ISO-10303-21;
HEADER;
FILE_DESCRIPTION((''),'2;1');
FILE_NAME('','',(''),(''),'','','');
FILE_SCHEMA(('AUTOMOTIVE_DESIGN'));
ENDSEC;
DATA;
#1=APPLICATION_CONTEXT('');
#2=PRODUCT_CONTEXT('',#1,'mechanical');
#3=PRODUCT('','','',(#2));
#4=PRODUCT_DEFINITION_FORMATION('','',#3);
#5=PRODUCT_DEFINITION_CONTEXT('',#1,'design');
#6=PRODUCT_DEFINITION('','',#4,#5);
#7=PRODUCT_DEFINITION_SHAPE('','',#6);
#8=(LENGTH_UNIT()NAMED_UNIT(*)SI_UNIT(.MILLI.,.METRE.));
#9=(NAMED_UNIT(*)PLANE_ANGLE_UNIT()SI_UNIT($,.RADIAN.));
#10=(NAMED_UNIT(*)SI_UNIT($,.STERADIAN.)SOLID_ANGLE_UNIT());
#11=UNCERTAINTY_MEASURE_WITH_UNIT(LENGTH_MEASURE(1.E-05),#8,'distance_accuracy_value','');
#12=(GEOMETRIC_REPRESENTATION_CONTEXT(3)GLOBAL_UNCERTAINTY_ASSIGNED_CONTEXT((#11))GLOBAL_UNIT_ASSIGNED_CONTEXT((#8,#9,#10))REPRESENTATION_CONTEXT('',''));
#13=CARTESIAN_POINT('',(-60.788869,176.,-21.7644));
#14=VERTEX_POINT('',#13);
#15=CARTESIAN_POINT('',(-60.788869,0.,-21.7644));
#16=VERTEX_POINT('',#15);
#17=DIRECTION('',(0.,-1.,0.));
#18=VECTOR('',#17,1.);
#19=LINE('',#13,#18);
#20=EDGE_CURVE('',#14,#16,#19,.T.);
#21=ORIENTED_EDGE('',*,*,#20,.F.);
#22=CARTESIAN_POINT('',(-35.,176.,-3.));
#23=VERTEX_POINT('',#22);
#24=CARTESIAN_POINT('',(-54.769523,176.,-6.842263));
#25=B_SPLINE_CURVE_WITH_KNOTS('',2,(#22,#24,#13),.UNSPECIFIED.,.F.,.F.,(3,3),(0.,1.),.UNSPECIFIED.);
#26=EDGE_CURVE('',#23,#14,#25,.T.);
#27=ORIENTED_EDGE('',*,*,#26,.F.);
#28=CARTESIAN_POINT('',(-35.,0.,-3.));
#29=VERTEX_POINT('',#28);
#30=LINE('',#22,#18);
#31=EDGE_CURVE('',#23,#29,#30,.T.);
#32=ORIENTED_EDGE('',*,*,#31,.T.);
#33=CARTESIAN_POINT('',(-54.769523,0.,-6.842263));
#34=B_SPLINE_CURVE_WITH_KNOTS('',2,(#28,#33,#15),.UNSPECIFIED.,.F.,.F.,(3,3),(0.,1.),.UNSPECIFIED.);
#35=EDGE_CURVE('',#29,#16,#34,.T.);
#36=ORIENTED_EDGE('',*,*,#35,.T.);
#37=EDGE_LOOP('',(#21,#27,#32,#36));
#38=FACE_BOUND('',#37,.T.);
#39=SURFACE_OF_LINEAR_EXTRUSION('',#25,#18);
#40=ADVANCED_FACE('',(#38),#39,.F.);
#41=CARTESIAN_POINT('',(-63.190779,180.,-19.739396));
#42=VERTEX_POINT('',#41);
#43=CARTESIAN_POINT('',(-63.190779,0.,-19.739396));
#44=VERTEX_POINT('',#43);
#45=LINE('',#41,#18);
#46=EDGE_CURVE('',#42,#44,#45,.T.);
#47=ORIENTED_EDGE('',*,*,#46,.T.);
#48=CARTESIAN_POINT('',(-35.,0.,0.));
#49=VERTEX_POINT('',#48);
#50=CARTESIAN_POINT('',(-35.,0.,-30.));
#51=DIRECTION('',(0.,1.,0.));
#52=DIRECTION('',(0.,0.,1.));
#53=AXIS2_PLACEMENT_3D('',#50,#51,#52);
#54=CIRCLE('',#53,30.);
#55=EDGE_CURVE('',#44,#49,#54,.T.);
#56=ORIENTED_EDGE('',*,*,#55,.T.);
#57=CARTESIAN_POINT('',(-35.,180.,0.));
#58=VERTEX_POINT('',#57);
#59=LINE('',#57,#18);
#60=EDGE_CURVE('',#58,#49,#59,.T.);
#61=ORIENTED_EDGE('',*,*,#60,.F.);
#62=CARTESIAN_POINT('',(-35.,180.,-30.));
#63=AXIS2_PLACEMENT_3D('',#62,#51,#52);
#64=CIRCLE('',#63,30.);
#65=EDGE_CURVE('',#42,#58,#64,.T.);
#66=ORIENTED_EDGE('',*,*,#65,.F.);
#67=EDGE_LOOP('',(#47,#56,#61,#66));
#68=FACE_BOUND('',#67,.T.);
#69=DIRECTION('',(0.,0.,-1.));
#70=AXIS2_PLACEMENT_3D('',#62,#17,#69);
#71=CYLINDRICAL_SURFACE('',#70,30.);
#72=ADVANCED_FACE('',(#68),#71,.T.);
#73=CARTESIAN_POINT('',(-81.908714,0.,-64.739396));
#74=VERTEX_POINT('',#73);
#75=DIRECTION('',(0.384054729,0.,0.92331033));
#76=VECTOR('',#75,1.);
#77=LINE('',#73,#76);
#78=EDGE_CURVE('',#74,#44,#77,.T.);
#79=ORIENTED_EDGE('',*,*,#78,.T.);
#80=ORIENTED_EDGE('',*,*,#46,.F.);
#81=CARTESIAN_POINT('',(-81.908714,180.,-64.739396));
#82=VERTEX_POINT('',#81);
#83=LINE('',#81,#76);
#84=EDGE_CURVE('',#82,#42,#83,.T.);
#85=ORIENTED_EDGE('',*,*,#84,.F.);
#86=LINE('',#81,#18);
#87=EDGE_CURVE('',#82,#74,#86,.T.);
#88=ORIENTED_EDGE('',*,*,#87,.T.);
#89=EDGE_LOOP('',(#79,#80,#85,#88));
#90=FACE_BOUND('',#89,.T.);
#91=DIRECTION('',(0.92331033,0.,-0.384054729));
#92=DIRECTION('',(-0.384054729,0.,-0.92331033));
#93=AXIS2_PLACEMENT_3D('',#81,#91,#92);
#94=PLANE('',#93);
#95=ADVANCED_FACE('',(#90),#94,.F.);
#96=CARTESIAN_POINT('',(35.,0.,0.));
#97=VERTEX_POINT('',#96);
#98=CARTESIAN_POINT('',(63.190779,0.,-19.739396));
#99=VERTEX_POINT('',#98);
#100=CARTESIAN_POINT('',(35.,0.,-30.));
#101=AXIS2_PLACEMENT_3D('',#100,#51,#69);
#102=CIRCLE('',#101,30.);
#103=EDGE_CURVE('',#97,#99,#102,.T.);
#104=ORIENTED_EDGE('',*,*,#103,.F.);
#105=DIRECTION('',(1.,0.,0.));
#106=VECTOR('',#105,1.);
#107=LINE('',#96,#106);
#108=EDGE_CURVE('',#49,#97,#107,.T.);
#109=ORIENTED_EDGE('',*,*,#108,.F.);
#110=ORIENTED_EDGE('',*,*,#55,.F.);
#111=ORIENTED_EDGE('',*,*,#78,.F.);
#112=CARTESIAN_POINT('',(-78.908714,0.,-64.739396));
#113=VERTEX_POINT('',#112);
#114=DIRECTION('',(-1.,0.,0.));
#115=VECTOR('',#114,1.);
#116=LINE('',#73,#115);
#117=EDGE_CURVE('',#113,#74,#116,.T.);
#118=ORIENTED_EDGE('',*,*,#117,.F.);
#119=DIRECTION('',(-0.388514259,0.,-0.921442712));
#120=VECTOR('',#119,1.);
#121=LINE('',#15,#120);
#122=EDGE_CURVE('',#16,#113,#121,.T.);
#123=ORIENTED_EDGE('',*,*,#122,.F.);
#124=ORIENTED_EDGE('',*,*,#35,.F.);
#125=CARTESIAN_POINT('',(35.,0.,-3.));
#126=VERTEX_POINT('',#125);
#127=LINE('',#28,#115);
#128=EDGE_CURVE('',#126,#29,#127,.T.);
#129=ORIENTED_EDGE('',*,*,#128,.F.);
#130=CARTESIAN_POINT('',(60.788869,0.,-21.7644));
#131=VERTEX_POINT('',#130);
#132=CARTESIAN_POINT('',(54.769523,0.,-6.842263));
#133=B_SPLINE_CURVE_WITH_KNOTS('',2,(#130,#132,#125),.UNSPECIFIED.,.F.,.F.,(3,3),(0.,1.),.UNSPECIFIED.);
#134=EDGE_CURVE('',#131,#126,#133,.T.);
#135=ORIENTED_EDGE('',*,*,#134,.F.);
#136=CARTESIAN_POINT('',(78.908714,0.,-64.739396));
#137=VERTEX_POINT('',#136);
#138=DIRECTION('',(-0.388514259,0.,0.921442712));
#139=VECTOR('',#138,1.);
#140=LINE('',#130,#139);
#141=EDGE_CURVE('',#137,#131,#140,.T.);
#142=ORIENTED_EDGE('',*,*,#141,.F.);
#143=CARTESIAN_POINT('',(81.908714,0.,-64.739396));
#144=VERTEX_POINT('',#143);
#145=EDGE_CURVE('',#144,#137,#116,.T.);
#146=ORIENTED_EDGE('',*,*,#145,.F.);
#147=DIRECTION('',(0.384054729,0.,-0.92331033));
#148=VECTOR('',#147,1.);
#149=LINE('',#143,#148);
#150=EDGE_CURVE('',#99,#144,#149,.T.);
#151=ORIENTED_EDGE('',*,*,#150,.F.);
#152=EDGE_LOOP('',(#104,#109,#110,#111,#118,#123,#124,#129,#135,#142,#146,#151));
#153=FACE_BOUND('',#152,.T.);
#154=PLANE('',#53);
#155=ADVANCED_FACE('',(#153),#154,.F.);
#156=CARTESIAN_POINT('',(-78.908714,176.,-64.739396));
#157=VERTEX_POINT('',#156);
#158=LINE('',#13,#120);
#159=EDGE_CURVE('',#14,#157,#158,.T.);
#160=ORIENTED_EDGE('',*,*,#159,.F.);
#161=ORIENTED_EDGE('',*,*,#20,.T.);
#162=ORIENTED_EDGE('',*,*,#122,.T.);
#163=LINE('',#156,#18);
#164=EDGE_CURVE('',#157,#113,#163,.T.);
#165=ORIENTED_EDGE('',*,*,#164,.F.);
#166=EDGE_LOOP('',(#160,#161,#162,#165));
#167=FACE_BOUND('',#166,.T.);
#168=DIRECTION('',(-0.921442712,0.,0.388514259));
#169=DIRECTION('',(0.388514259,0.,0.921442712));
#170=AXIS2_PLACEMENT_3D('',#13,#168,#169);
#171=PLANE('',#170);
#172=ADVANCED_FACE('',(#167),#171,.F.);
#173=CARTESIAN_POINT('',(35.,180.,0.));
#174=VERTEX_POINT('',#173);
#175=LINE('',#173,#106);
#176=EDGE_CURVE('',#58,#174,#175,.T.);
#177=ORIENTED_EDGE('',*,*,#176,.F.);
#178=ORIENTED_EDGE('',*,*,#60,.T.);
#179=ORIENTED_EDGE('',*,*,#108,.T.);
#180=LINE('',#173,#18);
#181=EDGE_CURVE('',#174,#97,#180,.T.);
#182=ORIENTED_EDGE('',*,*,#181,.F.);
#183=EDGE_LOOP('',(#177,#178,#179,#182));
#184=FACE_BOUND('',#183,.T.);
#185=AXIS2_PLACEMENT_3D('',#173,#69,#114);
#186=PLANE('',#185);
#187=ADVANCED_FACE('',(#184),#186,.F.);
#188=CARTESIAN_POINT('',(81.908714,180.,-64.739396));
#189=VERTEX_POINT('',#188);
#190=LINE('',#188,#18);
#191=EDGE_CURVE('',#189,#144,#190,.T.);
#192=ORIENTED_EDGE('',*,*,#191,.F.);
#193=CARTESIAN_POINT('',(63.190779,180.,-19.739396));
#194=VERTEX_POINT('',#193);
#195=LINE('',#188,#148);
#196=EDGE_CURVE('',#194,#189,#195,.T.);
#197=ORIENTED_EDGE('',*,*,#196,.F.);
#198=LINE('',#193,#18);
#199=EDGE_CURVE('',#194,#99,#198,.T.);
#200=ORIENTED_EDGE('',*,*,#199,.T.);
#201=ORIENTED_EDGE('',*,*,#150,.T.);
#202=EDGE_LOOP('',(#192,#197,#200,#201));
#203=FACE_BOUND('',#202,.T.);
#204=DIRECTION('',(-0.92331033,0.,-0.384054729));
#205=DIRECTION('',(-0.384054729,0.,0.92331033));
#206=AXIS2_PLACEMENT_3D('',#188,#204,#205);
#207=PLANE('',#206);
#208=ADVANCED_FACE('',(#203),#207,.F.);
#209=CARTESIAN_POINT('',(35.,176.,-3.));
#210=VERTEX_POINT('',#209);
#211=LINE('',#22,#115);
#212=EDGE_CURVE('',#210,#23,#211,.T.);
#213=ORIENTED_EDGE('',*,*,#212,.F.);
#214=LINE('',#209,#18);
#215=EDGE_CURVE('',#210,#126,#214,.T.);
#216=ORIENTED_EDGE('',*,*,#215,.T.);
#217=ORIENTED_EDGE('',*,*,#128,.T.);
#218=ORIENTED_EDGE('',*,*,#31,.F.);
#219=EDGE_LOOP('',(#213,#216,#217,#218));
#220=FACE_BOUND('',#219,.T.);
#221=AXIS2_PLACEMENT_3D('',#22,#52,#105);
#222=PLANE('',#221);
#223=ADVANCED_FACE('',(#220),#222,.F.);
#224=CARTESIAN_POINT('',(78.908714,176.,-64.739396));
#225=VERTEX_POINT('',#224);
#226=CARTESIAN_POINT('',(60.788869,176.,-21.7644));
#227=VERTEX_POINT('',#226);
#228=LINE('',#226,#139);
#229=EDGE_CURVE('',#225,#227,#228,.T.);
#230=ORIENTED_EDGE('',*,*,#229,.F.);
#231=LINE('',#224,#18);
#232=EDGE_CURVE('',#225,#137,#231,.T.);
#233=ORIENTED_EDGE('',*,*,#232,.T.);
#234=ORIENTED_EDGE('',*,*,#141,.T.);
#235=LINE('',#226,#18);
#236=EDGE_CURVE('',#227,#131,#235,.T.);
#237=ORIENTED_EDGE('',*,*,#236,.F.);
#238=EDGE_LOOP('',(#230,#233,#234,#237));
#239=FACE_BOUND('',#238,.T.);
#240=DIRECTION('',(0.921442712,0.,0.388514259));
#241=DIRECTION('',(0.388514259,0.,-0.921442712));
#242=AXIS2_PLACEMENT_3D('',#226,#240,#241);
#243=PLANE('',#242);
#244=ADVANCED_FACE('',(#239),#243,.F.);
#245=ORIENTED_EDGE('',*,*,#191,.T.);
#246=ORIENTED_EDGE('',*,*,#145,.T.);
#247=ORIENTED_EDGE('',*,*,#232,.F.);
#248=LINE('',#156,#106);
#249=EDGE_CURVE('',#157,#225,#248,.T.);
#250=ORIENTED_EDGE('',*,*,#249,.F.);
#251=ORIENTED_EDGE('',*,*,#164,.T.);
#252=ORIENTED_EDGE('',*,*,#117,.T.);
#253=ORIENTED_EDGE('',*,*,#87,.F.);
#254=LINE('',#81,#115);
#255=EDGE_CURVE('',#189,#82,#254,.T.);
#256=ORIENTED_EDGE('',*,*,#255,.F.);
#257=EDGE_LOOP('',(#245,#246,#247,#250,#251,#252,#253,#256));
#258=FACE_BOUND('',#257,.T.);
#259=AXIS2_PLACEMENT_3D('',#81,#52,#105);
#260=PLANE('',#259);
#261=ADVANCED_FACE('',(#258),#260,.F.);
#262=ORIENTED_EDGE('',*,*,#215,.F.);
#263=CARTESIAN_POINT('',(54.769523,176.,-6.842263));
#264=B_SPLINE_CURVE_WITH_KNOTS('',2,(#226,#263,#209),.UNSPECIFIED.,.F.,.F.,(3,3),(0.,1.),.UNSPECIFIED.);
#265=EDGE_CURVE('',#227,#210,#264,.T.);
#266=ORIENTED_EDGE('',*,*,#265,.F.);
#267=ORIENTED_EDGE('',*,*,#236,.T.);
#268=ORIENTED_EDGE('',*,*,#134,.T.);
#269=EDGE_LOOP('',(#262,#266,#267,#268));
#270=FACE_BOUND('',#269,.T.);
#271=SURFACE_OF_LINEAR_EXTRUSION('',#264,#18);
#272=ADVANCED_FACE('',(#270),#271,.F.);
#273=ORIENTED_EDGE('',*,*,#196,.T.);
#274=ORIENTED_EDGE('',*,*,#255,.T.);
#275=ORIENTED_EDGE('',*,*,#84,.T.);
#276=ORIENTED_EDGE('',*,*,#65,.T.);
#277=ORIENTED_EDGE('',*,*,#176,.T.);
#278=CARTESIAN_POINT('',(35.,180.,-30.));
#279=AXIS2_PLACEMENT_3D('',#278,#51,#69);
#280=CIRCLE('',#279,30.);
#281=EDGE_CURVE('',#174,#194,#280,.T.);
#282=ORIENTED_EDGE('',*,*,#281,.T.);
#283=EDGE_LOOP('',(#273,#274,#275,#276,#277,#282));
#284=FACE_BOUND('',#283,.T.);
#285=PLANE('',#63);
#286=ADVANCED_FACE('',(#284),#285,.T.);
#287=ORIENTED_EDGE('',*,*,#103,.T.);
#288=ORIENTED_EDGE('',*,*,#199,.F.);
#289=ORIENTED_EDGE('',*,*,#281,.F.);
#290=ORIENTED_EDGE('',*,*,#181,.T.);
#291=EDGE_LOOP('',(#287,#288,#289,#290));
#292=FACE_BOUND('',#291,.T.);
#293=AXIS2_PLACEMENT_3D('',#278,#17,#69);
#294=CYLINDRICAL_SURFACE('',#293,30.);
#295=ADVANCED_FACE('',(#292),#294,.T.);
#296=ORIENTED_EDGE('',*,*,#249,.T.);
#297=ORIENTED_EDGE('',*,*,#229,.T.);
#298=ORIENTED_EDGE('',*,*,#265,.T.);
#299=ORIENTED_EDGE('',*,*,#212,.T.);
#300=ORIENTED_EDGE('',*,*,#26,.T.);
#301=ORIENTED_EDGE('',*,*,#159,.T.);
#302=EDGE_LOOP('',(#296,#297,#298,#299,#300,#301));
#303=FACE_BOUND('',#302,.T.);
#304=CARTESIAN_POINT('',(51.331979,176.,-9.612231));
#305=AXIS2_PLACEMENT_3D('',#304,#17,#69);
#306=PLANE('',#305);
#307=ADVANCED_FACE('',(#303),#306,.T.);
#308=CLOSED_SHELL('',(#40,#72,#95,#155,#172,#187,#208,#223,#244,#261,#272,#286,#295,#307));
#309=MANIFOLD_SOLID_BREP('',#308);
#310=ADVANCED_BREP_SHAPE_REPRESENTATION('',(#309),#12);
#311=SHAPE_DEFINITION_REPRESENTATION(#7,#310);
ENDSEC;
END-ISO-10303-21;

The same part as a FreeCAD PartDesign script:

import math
import FreeCAD as App
import Part
import Sketcher
from FreeCAD import Vector
Q = App.Units.Quantity

doc = App.newDocument("Part")
body = doc.addObject("PartDesign::Body", "Body")

# Sketch on XZ plane
sketch1 = body.newObject("Sketcher::SketchObject", "Sketch")
sketch1.AttachmentSupport = (doc.getObject("XZ_Plane"), [""])
sketch1.MapMode = "FlatFace"
sketch1.addGeometry(Part.LineSegment(Vector(-35, 0, 0), Vector(35, 0, 0)), False)
sketch1.addGeometry(Part.ArcOfCircle(Part.Circle(Vector(35, -30, 0), Vector(0, 0, 1), 30), math.radians(20), math.radians(90)), False)
sketch1.addGeometry(Part.LineSegment(Vector(63.190779, -19.739396, 0), Vector(81.908714, -64.739396, 0)), False)
sketch1.addGeometry(Part.LineSegment(Vector(81.908714, -64.739396, 0), Vector(-81.908714, -64.739396, 0)), False)
sketch1.addGeometry(Part.LineSegment(Vector(-81.908714, -64.739396, 0), Vector(-63.190779, -19.739396, 0)), False)
sketch1.addGeometry(Part.ArcOfCircle(Part.Circle(Vector(-35, -30, 0), Vector(0, 0, 1), 30), math.radians(90), math.radians(160)), False)
sketch1.addConstraint(Sketcher.Constraint("Tangent", 0, 2, 1, 2))
sketch1.addConstraint(Sketcher.Constraint("Coincident", 1, 1, 2, 1))
sketch1.addConstraint(Sketcher.Constraint("Coincident", 2, 2, 3, 1))
sketch1.addConstraint(Sketcher.Constraint("Coincident", 3, 2, 4, 1))
sketch1.addConstraint(Sketcher.Constraint("Coincident", 4, 2, 5, 2))
sketch1.addConstraint(Sketcher.Constraint("Tangent", 5, 1, 0, 1))
sketch1.addConstraint(Sketcher.Constraint("Horizontal", 0))
sketch1.addConstraint(Sketcher.Constraint("Horizontal", 3))
sketch1.addConstraint(Sketcher.Constraint("Equal", 1, 5))
sketch1.addConstraint(Sketcher.Constraint("Symmetric", 0, 2, 5, 1, -1, 1))
sketch1.addConstraint(Sketcher.Constraint("Horizontal", 1, 1, 4, 2))
sketch1.addConstraint(Sketcher.Constraint("Equal", 2, 4))
sketch1.addConstraint(Sketcher.Constraint("Radius", 1, Q("30 mm")))
sketch1.addConstraint(Sketcher.Constraint("DistanceX", 0, 1, 0, 2, Q("70 mm")))
sketch1.addConstraint(Sketcher.Constraint("DistanceY", 2, 2, 1, 1, Q("45 mm")))
sketch1.addConstraint(Sketcher.Constraint("DistanceX", 3, 2, 3, 1, Q("163.817427 mm")))
sketch1.addConstraint(Sketcher.Constraint("DistanceX", -1, 1, 1, 1, Q("63.190779 mm")))
pad1 = body.newObject("PartDesign::Pad", "Pad")
pad1.Profile = sketch1
pad1.Length = 180
pad1.Reversed = True

# Sketch on XZ plane
sketch2 = body.newObject("Sketcher::SketchObject", "Sketch001")
sketch2.AttachmentSupport = (doc.getObject("XZ_Plane"), [""])
sketch2.MapMode = "FlatFace"
sketch2.addGeometry(Part.LineSegment(Vector(-78.908714, -64.739396, 0), Vector(78.908714, -64.739396, 0)), False)
sketch2.addGeometry(Part.LineSegment(Vector(78.908714, -64.739396, 0), Vector(60.788869, -21.7644, 0)), False)
sketch2.addGeometry(Part.BSplineCurve([Vector(35, -3, 0), Vector(54.769523, -6.842263, 0), Vector(60.788869, -21.7644, 0)], [3, 3], [0, 1], False, 2, [1, 1, 1], False), False)
sketch2.addGeometry(Part.LineSegment(Vector(35, -3, 0), Vector(-35, -3, 0)), False)
sketch2.addGeometry(Part.BSplineCurve([Vector(-35, -3, 0), Vector(-54.769523, -6.842263, 0), Vector(-60.788869, -21.7644, 0)], [3, 3], [0, 1], False, 2, [1, 1, 1], False), False)
sketch2.addGeometry(Part.LineSegment(Vector(-60.788869, -21.7644, 0), Vector(-78.908714, -64.739396, 0)), False)
sketch2.addConstraint(Sketcher.Constraint("Block", 2))
sketch2.addConstraint(Sketcher.Constraint("Block", 4))
sketch2.addConstraint(Sketcher.Constraint("Coincident", 0, 2, 1, 1))
sketch2.addConstraint(Sketcher.Constraint("Coincident", 1, 2, 2, 2))
sketch2.addConstraint(Sketcher.Constraint("Coincident", 2, 1, 3, 1))
sketch2.addConstraint(Sketcher.Constraint("Coincident", 3, 2, 4, 1))
sketch2.addConstraint(Sketcher.Constraint("Coincident", 4, 2, 5, 1))
sketch2.addConstraint(Sketcher.Constraint("Coincident", 5, 2, 0, 1))
sketch2.addConstraint(Sketcher.Constraint("Horizontal", 0))
sketch2.addConstraint(Sketcher.Constraint("Equal", 1, 5))
sketch2.addConstraint(Sketcher.Constraint("DistanceX", 0, 1, 0, 2, Q("157.817427 mm")))
sketch2.addConstraint(Sketcher.Constraint("Distance", 1, Q("46.638814 mm")))
pocket1 = body.newObject("PartDesign::Pocket", "Pocket")
pocket1.Profile = sketch2
pocket1.Length = 176

doc.recompute()
